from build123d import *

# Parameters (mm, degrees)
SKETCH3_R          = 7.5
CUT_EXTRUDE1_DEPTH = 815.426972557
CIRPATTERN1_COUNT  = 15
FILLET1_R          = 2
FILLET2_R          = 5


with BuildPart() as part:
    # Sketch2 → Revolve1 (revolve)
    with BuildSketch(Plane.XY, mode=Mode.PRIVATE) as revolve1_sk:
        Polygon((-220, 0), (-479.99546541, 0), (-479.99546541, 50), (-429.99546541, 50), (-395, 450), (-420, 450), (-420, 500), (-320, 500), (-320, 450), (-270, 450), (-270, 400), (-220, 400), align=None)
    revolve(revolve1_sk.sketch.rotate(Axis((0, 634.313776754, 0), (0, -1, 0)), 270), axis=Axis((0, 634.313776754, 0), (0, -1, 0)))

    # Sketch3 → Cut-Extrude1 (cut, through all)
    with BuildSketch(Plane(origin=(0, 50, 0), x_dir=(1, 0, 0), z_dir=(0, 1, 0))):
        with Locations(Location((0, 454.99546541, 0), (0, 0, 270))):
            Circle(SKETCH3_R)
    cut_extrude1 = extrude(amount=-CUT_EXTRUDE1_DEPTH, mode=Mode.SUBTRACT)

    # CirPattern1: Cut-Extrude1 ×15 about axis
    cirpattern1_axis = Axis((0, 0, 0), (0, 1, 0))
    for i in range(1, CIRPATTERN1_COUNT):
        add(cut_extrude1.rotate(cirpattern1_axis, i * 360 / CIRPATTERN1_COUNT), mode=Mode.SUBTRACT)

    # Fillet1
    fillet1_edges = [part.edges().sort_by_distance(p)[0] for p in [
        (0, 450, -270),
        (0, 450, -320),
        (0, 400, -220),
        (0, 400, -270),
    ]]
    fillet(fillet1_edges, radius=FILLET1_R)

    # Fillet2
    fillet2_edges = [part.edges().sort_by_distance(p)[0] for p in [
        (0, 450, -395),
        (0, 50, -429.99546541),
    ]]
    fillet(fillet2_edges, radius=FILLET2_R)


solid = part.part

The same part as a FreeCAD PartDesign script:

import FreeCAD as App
import Part
import Sketcher
Q = App.Units.Quantity


def edges_at(feature, points):
    """Names of the edges that pass closest to the given points."""
    edges = feature.Shape.Edges
    near = lambda p: min(range(len(edges)), key=lambda i: edges[i].distToShape(Part.Vertex(*p))[0])
    return sorted({f"Edge{near(p) + 1}" for p in points})


def add_polygon(sketch, points):
    """Adds a closed chain of lines whose ends are joined by coincident constraints."""
    first, n = sketch.GeometryCount, len(points)
    for a, b in zip(points, points[1:] + points[:1]):
        sketch.addGeometry(Part.LineSegment(App.Vector(*a, 0), App.Vector(*b, 0)), False)
    for i in range(n):
        sketch.addConstraint(Sketcher.Constraint("Coincident", first + i, 2, first + (i + 1) % n, 1))

doc = App.newDocument("Part")
body = doc.addObject("PartDesign::Body", "Body")

# Sketch on XY plane
sketch1 = body.newObject("Sketcher::SketchObject", "Sketch")
sketch1.AttachmentSupport = (doc.getObject("XY_Plane"), [""])
sketch1.MapMode = "FlatFace"
add_polygon(sketch1, [(-480, 0), (-220, 0), (-220, 400), (-270, 400), (-270, 450), (-320, 450), (-320, 500), (-420, 500), (-420, 450), (-395, 450), (-430, 50), (-480, 50)])  # lines 0-11
sketch1.addConstraint([
    Sketcher.Constraint("Horizontal", 0),
    Sketcher.Constraint("Vertical", 1),
    Sketcher.Constraint("Horizontal", 2),
    Sketcher.Constraint("Vertical", 3),
    Sketcher.Constraint("Horizontal", 4),
    Sketcher.Constraint("Vertical", 5),
    Sketcher.Constraint("Horizontal", 6),
    Sketcher.Constraint("Vertical", 7),
    Sketcher.Constraint("Horizontal", 8),
    Sketcher.Constraint("Horizontal", 10),
    Sketcher.Constraint("Vertical", 11),
    Sketcher.Constraint("PointOnObject", 0, 2, -1),
    Sketcher.Constraint("Horizontal", 4, 2, 7, 2),
    Sketcher.Constraint("Equal", 2, 4),
    Sketcher.Constraint("Equal", 4, 10),
    Sketcher.Constraint("Equal", 10, 3),
    Sketcher.Constraint("Equal", 3, 5),
    Sketcher.Constraint("Equal", 7, 11),
    Sketcher.Constraint("DistanceX", 2, 2, 2, 1, 50.0),
    Sketcher.Constraint("DistanceX", 6, 2, 6, 1, 100.0),
    Sketcher.Constraint("DistanceX", 8, 1, 8, 2, 25.0),
    Sketcher.Constraint("DistanceY", 1, 1, 1, 2, 400.0),
    Sketcher.Constraint("Angle", 9, Q("-95 deg")),
    Sketcher.Constraint("DistanceX", 0, 2, -1, 1, 220.0),
])
revolution = body.newObject("PartDesign::Revolution", "Revolution")
revolution.Profile = sketch1
revolution.ReferenceAxis = (sketch1, ["V_Axis"])
revolution.Angle = 360

# Sketch on XZ plane
sketch2 = body.newObject("Sketcher::SketchObject", "Sketch001")
sketch2.AttachmentSupport = (doc.getObject("XZ_Plane"), [""])
sketch2.MapMode = "FlatFace"
sketch2.AttachmentOffset = App.Placement(App.Vector(0, 0, -50), App.Rotation())
sketch2.addGeometry(Part.Circle(App.Vector(0, -455, 0), App.Vector(0, 0, 1), 8), False)
sketch2.addConstraint([
    Sketcher.Constraint("PointOnObject", 0, 3, -2),
    Sketcher.Constraint("Diameter", 0, 15.0),
    Sketcher.Constraint("DistanceY", 0, 3, -1, 1, 454.995465),
])
pocket1 = body.newObject("PartDesign::Pocket", "Pocket")
pocket1.Profile = sketch2
pocket1.Type = "ThroughAll"
pocket1.Reversed = True
doc.recompute()

polarpattern = body.newObject("PartDesign::PolarPattern", "PolarPattern")
polarpattern.Originals = [pocket1]
polarpattern.Axis = (doc.getObject("Y_Axis"), [""])
polarpattern.Angle = 360
polarpattern.Occurrences = 15
body.Tip = polarpattern
doc.recompute()

fillet = body.newObject("PartDesign::Fillet", "Fillet")
fillet.Base = (polarpattern, edges_at(polarpattern, [
    (0, 450, -270),
    (0, 450, -320),
    (0, 400, -220),
    (0, 400, -270),
]))
fillet.Radius = 2
doc.recompute()

fillet2 = body.newObject("PartDesign::Fillet", "Fillet001")
fillet2.Base = (fillet, edges_at(fillet, [(0, 450, -395), (0, 50, -429.995)]))
fillet2.Radius = 5

doc.recompute()
